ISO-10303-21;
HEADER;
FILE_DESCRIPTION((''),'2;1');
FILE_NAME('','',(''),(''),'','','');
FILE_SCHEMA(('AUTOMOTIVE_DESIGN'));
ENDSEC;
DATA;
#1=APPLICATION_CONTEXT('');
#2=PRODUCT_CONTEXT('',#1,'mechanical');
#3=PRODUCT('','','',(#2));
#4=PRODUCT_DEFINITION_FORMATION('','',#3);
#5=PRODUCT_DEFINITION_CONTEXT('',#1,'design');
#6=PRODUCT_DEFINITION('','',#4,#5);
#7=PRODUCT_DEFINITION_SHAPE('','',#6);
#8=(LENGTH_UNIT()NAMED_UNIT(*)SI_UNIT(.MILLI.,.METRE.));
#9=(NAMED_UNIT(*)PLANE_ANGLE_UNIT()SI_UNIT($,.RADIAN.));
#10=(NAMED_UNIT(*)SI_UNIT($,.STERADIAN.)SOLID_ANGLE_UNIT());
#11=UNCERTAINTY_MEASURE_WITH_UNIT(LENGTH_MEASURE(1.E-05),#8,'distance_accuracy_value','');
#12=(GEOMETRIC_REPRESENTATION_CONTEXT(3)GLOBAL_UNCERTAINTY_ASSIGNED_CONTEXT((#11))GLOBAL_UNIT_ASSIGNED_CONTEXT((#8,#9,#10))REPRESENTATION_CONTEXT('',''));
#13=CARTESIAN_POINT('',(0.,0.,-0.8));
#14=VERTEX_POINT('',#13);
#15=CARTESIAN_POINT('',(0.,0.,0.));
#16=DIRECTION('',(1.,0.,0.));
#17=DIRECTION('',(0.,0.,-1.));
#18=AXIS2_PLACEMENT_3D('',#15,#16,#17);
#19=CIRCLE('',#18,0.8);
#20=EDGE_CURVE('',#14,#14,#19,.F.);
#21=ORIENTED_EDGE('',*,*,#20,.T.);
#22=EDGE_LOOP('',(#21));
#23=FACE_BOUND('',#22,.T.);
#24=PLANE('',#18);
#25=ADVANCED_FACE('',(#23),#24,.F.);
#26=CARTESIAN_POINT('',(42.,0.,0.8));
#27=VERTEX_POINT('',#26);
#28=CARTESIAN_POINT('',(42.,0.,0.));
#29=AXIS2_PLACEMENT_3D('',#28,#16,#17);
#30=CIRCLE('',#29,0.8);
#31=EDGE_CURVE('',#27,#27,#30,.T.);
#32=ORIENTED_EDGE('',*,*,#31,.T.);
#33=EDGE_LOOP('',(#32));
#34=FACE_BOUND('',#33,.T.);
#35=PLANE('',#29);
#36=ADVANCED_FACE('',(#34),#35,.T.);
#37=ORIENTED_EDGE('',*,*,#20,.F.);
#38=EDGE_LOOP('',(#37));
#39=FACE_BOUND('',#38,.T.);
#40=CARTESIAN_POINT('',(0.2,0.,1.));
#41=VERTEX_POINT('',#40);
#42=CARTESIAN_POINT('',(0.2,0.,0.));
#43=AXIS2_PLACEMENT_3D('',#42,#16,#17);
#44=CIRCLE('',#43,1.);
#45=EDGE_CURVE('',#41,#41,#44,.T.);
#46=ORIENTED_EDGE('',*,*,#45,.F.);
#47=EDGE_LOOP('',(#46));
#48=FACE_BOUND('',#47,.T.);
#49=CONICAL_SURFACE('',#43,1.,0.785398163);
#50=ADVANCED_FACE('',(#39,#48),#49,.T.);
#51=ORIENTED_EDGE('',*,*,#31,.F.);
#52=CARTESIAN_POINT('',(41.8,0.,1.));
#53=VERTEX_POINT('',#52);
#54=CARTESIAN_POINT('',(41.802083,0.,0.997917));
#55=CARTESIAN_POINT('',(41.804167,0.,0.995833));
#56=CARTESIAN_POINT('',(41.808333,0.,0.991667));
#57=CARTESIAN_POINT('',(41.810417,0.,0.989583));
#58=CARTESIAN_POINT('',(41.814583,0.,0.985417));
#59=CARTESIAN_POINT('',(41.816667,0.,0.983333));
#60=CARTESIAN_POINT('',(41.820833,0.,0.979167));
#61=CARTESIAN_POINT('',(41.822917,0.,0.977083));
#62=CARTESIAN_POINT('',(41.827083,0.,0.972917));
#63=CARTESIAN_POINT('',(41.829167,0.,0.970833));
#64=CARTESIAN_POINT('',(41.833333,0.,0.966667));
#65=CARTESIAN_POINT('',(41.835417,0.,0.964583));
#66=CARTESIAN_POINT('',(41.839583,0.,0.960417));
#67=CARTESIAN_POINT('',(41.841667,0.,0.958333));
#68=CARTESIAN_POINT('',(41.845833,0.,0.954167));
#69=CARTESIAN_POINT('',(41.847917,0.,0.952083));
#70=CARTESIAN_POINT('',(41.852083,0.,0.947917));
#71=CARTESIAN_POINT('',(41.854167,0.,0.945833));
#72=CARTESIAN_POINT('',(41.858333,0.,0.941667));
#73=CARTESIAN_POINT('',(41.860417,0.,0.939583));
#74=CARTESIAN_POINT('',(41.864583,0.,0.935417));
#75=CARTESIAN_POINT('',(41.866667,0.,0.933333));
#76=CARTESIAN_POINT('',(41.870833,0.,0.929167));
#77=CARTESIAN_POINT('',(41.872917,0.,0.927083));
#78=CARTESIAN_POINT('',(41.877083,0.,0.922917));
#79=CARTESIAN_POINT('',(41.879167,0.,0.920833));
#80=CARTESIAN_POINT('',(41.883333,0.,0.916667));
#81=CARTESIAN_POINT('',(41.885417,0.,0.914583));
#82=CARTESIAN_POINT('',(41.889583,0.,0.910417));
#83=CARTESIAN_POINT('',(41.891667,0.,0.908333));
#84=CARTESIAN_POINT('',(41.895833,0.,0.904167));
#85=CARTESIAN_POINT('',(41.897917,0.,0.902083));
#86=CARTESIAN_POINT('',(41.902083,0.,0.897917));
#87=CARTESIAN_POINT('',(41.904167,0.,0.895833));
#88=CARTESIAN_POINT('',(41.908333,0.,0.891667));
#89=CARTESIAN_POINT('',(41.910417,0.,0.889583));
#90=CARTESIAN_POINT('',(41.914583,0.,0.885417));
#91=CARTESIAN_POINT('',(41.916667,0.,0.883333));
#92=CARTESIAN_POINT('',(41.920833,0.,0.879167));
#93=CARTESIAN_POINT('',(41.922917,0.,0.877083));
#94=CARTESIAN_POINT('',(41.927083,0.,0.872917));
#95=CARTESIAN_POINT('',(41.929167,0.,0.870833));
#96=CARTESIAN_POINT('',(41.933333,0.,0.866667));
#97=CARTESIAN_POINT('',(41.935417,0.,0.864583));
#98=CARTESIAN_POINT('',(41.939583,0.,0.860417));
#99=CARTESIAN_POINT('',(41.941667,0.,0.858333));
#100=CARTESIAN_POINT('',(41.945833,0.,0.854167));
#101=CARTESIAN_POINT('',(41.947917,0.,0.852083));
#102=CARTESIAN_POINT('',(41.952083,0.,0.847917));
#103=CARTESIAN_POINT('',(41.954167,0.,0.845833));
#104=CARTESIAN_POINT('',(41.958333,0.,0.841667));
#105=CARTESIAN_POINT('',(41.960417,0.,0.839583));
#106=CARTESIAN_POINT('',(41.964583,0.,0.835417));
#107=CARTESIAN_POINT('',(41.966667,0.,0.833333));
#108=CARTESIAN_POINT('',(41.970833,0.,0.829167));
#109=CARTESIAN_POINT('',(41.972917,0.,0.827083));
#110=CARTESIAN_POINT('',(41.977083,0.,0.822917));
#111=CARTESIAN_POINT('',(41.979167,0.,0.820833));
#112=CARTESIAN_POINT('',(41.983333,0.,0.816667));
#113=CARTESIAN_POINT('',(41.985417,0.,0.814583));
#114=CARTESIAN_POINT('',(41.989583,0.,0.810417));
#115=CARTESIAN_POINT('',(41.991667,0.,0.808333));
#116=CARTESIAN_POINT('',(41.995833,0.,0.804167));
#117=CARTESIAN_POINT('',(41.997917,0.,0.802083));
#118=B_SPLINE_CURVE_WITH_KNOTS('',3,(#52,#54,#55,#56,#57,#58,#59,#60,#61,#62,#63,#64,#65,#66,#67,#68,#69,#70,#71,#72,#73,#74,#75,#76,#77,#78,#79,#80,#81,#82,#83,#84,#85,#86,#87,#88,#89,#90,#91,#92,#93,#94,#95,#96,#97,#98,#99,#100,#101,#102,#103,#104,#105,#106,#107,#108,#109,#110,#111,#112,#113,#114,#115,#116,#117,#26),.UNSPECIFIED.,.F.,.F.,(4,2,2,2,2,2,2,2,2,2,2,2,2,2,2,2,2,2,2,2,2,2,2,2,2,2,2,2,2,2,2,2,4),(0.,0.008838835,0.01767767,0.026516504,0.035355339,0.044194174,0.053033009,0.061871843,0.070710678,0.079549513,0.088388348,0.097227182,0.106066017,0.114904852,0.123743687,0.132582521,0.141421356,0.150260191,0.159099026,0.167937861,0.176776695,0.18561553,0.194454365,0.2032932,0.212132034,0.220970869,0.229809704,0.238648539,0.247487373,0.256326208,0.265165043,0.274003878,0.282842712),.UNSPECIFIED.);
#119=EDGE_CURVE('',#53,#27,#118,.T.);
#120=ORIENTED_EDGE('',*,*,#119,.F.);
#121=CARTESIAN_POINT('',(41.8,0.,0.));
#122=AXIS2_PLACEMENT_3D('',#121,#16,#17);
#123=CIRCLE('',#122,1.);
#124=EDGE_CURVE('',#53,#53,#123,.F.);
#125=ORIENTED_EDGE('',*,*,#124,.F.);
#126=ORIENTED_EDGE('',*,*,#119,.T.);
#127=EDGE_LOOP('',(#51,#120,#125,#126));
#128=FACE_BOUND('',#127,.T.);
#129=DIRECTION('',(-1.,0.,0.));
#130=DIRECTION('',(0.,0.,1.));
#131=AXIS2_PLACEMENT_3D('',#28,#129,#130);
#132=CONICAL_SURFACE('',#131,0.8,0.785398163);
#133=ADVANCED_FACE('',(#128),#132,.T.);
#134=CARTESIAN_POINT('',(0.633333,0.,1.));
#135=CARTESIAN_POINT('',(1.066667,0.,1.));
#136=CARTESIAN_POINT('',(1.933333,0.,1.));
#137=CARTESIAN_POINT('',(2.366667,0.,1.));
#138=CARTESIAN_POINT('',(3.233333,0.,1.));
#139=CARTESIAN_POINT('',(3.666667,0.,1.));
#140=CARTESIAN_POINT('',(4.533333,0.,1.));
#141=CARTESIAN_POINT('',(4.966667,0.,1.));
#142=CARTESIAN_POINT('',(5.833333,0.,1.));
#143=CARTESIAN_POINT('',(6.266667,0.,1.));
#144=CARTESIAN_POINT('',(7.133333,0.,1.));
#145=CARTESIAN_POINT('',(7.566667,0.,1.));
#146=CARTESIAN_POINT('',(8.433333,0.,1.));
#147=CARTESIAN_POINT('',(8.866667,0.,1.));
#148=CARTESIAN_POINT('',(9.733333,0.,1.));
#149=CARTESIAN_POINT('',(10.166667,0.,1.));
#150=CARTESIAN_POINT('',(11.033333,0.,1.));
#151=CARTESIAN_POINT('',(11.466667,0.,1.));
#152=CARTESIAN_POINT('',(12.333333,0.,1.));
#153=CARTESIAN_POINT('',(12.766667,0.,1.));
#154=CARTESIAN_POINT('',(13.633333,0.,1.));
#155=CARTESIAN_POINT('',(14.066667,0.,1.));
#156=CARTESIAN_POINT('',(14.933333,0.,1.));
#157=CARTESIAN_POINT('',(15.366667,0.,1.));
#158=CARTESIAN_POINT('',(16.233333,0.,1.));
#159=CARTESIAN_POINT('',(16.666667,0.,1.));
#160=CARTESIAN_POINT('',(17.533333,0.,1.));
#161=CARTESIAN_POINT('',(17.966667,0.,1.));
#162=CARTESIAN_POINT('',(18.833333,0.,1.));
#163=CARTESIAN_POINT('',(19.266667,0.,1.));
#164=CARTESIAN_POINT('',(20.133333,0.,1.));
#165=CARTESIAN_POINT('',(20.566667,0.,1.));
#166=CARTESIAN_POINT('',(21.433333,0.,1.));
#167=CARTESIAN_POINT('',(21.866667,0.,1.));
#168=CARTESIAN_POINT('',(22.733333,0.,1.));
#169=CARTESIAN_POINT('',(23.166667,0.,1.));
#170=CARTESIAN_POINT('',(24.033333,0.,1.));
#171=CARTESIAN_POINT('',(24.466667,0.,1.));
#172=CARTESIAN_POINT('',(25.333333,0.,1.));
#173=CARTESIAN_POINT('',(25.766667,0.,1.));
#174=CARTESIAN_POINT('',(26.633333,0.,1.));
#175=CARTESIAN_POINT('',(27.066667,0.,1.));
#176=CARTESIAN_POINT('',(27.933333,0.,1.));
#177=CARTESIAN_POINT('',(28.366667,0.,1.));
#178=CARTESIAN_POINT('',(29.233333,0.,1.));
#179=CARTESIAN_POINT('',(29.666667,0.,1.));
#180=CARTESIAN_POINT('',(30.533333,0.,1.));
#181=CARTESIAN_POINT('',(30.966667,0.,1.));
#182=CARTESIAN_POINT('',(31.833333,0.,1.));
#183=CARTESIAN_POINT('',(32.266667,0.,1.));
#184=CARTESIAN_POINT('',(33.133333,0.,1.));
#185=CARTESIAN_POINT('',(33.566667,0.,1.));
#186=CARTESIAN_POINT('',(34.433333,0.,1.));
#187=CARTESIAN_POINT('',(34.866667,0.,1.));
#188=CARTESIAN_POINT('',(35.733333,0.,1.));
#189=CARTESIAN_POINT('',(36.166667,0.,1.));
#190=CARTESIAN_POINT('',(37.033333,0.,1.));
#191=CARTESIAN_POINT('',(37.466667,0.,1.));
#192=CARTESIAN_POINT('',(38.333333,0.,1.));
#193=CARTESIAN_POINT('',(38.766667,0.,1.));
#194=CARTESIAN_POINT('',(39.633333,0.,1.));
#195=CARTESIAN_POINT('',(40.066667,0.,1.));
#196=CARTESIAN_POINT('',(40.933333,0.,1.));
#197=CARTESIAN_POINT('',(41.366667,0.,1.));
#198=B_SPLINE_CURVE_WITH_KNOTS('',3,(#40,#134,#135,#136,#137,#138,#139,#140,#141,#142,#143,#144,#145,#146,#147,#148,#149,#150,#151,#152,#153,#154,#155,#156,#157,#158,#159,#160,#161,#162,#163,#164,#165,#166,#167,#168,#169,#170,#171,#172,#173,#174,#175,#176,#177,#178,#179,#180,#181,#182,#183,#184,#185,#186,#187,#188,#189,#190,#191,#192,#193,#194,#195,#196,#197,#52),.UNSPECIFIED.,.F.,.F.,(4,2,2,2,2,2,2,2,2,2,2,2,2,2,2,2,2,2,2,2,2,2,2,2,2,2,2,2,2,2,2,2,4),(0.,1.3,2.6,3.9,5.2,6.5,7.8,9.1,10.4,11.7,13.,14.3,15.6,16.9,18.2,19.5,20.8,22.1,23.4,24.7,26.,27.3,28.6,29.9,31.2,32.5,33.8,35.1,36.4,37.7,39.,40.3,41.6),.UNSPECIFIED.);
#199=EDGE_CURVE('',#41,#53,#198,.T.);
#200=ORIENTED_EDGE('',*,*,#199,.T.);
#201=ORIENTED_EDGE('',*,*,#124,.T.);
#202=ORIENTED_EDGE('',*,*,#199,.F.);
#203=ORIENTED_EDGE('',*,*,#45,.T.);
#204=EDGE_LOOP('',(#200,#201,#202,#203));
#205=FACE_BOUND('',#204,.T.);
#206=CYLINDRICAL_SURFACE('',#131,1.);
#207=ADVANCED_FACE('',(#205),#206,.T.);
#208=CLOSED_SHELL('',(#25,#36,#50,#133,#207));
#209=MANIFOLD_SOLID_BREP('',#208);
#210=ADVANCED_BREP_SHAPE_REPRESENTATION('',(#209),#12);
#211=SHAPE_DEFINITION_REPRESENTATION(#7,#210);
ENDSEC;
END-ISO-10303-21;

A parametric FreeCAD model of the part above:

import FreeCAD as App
import Part
import Sketcher
from FreeCAD import Vector


def edges_at(feature, points):
    """Names of the edges that pass closest to the given points."""
    edges = feature.Shape.Edges
    near = lambda p: min(range(len(edges)), key=lambda i: edges[i].distToShape(Part.Vertex(*p))[0])
    return sorted({f"Edge{near(p) + 1}" for p in points})

doc = App.newDocument("Part")
params = doc.addObject("Spreadsheet::Sheet", "Params")
for row, (alias, value) in enumerate([
    ("sketch1_diameter", "2 mm"),
    ("pad1_length", "42 mm"),
    ("chamfer_size", "0.2 mm"),
], start=1):
    params.set(f"A{row}", alias)
    params.set(f"B{row}", "=" + value)
    params.setAlias(f"B{row}", alias)

body = doc.addObject("PartDesign::Body", "Body")

sketch1 = doc.addObject("Sketcher::SketchObject", "Sketch")
body.addObject(sketch1)
sketch1.AttachmentSupport = (doc.YZ_Plane, [""])
sketch1.MapMode = "FlatFace"
sketch1.addGeometry(Part.Circle(Vector(0, 0, 0), Vector(0, 0, 1), 1), False)
sketch1.addConstraint([
    Sketcher.Constraint("Coincident", 0, 3, -1, 1),
    Sketcher.Constraint("Diameter", 0, 2.0),
])
sketch1.setExpression("Constraints[1]", "Params.sketch1_diameter")
pad1 = doc.addObject("PartDesign::Pad", "Pad")
body.addObject(pad1)
pad1.Profile = sketch1
pad1.setExpression("Length", "Params.pad1_length")
doc.recompute()

chamfer = doc.addObject("PartDesign::Chamfer", "Chamfer")
body.addObject(chamfer)
chamfer.Base = (pad1, edges_at(pad1, [(0, 0, -1), (42, 0, -1)]))
chamfer.setExpression("Size", "Params.chamfer_size")

doc.recompute()
